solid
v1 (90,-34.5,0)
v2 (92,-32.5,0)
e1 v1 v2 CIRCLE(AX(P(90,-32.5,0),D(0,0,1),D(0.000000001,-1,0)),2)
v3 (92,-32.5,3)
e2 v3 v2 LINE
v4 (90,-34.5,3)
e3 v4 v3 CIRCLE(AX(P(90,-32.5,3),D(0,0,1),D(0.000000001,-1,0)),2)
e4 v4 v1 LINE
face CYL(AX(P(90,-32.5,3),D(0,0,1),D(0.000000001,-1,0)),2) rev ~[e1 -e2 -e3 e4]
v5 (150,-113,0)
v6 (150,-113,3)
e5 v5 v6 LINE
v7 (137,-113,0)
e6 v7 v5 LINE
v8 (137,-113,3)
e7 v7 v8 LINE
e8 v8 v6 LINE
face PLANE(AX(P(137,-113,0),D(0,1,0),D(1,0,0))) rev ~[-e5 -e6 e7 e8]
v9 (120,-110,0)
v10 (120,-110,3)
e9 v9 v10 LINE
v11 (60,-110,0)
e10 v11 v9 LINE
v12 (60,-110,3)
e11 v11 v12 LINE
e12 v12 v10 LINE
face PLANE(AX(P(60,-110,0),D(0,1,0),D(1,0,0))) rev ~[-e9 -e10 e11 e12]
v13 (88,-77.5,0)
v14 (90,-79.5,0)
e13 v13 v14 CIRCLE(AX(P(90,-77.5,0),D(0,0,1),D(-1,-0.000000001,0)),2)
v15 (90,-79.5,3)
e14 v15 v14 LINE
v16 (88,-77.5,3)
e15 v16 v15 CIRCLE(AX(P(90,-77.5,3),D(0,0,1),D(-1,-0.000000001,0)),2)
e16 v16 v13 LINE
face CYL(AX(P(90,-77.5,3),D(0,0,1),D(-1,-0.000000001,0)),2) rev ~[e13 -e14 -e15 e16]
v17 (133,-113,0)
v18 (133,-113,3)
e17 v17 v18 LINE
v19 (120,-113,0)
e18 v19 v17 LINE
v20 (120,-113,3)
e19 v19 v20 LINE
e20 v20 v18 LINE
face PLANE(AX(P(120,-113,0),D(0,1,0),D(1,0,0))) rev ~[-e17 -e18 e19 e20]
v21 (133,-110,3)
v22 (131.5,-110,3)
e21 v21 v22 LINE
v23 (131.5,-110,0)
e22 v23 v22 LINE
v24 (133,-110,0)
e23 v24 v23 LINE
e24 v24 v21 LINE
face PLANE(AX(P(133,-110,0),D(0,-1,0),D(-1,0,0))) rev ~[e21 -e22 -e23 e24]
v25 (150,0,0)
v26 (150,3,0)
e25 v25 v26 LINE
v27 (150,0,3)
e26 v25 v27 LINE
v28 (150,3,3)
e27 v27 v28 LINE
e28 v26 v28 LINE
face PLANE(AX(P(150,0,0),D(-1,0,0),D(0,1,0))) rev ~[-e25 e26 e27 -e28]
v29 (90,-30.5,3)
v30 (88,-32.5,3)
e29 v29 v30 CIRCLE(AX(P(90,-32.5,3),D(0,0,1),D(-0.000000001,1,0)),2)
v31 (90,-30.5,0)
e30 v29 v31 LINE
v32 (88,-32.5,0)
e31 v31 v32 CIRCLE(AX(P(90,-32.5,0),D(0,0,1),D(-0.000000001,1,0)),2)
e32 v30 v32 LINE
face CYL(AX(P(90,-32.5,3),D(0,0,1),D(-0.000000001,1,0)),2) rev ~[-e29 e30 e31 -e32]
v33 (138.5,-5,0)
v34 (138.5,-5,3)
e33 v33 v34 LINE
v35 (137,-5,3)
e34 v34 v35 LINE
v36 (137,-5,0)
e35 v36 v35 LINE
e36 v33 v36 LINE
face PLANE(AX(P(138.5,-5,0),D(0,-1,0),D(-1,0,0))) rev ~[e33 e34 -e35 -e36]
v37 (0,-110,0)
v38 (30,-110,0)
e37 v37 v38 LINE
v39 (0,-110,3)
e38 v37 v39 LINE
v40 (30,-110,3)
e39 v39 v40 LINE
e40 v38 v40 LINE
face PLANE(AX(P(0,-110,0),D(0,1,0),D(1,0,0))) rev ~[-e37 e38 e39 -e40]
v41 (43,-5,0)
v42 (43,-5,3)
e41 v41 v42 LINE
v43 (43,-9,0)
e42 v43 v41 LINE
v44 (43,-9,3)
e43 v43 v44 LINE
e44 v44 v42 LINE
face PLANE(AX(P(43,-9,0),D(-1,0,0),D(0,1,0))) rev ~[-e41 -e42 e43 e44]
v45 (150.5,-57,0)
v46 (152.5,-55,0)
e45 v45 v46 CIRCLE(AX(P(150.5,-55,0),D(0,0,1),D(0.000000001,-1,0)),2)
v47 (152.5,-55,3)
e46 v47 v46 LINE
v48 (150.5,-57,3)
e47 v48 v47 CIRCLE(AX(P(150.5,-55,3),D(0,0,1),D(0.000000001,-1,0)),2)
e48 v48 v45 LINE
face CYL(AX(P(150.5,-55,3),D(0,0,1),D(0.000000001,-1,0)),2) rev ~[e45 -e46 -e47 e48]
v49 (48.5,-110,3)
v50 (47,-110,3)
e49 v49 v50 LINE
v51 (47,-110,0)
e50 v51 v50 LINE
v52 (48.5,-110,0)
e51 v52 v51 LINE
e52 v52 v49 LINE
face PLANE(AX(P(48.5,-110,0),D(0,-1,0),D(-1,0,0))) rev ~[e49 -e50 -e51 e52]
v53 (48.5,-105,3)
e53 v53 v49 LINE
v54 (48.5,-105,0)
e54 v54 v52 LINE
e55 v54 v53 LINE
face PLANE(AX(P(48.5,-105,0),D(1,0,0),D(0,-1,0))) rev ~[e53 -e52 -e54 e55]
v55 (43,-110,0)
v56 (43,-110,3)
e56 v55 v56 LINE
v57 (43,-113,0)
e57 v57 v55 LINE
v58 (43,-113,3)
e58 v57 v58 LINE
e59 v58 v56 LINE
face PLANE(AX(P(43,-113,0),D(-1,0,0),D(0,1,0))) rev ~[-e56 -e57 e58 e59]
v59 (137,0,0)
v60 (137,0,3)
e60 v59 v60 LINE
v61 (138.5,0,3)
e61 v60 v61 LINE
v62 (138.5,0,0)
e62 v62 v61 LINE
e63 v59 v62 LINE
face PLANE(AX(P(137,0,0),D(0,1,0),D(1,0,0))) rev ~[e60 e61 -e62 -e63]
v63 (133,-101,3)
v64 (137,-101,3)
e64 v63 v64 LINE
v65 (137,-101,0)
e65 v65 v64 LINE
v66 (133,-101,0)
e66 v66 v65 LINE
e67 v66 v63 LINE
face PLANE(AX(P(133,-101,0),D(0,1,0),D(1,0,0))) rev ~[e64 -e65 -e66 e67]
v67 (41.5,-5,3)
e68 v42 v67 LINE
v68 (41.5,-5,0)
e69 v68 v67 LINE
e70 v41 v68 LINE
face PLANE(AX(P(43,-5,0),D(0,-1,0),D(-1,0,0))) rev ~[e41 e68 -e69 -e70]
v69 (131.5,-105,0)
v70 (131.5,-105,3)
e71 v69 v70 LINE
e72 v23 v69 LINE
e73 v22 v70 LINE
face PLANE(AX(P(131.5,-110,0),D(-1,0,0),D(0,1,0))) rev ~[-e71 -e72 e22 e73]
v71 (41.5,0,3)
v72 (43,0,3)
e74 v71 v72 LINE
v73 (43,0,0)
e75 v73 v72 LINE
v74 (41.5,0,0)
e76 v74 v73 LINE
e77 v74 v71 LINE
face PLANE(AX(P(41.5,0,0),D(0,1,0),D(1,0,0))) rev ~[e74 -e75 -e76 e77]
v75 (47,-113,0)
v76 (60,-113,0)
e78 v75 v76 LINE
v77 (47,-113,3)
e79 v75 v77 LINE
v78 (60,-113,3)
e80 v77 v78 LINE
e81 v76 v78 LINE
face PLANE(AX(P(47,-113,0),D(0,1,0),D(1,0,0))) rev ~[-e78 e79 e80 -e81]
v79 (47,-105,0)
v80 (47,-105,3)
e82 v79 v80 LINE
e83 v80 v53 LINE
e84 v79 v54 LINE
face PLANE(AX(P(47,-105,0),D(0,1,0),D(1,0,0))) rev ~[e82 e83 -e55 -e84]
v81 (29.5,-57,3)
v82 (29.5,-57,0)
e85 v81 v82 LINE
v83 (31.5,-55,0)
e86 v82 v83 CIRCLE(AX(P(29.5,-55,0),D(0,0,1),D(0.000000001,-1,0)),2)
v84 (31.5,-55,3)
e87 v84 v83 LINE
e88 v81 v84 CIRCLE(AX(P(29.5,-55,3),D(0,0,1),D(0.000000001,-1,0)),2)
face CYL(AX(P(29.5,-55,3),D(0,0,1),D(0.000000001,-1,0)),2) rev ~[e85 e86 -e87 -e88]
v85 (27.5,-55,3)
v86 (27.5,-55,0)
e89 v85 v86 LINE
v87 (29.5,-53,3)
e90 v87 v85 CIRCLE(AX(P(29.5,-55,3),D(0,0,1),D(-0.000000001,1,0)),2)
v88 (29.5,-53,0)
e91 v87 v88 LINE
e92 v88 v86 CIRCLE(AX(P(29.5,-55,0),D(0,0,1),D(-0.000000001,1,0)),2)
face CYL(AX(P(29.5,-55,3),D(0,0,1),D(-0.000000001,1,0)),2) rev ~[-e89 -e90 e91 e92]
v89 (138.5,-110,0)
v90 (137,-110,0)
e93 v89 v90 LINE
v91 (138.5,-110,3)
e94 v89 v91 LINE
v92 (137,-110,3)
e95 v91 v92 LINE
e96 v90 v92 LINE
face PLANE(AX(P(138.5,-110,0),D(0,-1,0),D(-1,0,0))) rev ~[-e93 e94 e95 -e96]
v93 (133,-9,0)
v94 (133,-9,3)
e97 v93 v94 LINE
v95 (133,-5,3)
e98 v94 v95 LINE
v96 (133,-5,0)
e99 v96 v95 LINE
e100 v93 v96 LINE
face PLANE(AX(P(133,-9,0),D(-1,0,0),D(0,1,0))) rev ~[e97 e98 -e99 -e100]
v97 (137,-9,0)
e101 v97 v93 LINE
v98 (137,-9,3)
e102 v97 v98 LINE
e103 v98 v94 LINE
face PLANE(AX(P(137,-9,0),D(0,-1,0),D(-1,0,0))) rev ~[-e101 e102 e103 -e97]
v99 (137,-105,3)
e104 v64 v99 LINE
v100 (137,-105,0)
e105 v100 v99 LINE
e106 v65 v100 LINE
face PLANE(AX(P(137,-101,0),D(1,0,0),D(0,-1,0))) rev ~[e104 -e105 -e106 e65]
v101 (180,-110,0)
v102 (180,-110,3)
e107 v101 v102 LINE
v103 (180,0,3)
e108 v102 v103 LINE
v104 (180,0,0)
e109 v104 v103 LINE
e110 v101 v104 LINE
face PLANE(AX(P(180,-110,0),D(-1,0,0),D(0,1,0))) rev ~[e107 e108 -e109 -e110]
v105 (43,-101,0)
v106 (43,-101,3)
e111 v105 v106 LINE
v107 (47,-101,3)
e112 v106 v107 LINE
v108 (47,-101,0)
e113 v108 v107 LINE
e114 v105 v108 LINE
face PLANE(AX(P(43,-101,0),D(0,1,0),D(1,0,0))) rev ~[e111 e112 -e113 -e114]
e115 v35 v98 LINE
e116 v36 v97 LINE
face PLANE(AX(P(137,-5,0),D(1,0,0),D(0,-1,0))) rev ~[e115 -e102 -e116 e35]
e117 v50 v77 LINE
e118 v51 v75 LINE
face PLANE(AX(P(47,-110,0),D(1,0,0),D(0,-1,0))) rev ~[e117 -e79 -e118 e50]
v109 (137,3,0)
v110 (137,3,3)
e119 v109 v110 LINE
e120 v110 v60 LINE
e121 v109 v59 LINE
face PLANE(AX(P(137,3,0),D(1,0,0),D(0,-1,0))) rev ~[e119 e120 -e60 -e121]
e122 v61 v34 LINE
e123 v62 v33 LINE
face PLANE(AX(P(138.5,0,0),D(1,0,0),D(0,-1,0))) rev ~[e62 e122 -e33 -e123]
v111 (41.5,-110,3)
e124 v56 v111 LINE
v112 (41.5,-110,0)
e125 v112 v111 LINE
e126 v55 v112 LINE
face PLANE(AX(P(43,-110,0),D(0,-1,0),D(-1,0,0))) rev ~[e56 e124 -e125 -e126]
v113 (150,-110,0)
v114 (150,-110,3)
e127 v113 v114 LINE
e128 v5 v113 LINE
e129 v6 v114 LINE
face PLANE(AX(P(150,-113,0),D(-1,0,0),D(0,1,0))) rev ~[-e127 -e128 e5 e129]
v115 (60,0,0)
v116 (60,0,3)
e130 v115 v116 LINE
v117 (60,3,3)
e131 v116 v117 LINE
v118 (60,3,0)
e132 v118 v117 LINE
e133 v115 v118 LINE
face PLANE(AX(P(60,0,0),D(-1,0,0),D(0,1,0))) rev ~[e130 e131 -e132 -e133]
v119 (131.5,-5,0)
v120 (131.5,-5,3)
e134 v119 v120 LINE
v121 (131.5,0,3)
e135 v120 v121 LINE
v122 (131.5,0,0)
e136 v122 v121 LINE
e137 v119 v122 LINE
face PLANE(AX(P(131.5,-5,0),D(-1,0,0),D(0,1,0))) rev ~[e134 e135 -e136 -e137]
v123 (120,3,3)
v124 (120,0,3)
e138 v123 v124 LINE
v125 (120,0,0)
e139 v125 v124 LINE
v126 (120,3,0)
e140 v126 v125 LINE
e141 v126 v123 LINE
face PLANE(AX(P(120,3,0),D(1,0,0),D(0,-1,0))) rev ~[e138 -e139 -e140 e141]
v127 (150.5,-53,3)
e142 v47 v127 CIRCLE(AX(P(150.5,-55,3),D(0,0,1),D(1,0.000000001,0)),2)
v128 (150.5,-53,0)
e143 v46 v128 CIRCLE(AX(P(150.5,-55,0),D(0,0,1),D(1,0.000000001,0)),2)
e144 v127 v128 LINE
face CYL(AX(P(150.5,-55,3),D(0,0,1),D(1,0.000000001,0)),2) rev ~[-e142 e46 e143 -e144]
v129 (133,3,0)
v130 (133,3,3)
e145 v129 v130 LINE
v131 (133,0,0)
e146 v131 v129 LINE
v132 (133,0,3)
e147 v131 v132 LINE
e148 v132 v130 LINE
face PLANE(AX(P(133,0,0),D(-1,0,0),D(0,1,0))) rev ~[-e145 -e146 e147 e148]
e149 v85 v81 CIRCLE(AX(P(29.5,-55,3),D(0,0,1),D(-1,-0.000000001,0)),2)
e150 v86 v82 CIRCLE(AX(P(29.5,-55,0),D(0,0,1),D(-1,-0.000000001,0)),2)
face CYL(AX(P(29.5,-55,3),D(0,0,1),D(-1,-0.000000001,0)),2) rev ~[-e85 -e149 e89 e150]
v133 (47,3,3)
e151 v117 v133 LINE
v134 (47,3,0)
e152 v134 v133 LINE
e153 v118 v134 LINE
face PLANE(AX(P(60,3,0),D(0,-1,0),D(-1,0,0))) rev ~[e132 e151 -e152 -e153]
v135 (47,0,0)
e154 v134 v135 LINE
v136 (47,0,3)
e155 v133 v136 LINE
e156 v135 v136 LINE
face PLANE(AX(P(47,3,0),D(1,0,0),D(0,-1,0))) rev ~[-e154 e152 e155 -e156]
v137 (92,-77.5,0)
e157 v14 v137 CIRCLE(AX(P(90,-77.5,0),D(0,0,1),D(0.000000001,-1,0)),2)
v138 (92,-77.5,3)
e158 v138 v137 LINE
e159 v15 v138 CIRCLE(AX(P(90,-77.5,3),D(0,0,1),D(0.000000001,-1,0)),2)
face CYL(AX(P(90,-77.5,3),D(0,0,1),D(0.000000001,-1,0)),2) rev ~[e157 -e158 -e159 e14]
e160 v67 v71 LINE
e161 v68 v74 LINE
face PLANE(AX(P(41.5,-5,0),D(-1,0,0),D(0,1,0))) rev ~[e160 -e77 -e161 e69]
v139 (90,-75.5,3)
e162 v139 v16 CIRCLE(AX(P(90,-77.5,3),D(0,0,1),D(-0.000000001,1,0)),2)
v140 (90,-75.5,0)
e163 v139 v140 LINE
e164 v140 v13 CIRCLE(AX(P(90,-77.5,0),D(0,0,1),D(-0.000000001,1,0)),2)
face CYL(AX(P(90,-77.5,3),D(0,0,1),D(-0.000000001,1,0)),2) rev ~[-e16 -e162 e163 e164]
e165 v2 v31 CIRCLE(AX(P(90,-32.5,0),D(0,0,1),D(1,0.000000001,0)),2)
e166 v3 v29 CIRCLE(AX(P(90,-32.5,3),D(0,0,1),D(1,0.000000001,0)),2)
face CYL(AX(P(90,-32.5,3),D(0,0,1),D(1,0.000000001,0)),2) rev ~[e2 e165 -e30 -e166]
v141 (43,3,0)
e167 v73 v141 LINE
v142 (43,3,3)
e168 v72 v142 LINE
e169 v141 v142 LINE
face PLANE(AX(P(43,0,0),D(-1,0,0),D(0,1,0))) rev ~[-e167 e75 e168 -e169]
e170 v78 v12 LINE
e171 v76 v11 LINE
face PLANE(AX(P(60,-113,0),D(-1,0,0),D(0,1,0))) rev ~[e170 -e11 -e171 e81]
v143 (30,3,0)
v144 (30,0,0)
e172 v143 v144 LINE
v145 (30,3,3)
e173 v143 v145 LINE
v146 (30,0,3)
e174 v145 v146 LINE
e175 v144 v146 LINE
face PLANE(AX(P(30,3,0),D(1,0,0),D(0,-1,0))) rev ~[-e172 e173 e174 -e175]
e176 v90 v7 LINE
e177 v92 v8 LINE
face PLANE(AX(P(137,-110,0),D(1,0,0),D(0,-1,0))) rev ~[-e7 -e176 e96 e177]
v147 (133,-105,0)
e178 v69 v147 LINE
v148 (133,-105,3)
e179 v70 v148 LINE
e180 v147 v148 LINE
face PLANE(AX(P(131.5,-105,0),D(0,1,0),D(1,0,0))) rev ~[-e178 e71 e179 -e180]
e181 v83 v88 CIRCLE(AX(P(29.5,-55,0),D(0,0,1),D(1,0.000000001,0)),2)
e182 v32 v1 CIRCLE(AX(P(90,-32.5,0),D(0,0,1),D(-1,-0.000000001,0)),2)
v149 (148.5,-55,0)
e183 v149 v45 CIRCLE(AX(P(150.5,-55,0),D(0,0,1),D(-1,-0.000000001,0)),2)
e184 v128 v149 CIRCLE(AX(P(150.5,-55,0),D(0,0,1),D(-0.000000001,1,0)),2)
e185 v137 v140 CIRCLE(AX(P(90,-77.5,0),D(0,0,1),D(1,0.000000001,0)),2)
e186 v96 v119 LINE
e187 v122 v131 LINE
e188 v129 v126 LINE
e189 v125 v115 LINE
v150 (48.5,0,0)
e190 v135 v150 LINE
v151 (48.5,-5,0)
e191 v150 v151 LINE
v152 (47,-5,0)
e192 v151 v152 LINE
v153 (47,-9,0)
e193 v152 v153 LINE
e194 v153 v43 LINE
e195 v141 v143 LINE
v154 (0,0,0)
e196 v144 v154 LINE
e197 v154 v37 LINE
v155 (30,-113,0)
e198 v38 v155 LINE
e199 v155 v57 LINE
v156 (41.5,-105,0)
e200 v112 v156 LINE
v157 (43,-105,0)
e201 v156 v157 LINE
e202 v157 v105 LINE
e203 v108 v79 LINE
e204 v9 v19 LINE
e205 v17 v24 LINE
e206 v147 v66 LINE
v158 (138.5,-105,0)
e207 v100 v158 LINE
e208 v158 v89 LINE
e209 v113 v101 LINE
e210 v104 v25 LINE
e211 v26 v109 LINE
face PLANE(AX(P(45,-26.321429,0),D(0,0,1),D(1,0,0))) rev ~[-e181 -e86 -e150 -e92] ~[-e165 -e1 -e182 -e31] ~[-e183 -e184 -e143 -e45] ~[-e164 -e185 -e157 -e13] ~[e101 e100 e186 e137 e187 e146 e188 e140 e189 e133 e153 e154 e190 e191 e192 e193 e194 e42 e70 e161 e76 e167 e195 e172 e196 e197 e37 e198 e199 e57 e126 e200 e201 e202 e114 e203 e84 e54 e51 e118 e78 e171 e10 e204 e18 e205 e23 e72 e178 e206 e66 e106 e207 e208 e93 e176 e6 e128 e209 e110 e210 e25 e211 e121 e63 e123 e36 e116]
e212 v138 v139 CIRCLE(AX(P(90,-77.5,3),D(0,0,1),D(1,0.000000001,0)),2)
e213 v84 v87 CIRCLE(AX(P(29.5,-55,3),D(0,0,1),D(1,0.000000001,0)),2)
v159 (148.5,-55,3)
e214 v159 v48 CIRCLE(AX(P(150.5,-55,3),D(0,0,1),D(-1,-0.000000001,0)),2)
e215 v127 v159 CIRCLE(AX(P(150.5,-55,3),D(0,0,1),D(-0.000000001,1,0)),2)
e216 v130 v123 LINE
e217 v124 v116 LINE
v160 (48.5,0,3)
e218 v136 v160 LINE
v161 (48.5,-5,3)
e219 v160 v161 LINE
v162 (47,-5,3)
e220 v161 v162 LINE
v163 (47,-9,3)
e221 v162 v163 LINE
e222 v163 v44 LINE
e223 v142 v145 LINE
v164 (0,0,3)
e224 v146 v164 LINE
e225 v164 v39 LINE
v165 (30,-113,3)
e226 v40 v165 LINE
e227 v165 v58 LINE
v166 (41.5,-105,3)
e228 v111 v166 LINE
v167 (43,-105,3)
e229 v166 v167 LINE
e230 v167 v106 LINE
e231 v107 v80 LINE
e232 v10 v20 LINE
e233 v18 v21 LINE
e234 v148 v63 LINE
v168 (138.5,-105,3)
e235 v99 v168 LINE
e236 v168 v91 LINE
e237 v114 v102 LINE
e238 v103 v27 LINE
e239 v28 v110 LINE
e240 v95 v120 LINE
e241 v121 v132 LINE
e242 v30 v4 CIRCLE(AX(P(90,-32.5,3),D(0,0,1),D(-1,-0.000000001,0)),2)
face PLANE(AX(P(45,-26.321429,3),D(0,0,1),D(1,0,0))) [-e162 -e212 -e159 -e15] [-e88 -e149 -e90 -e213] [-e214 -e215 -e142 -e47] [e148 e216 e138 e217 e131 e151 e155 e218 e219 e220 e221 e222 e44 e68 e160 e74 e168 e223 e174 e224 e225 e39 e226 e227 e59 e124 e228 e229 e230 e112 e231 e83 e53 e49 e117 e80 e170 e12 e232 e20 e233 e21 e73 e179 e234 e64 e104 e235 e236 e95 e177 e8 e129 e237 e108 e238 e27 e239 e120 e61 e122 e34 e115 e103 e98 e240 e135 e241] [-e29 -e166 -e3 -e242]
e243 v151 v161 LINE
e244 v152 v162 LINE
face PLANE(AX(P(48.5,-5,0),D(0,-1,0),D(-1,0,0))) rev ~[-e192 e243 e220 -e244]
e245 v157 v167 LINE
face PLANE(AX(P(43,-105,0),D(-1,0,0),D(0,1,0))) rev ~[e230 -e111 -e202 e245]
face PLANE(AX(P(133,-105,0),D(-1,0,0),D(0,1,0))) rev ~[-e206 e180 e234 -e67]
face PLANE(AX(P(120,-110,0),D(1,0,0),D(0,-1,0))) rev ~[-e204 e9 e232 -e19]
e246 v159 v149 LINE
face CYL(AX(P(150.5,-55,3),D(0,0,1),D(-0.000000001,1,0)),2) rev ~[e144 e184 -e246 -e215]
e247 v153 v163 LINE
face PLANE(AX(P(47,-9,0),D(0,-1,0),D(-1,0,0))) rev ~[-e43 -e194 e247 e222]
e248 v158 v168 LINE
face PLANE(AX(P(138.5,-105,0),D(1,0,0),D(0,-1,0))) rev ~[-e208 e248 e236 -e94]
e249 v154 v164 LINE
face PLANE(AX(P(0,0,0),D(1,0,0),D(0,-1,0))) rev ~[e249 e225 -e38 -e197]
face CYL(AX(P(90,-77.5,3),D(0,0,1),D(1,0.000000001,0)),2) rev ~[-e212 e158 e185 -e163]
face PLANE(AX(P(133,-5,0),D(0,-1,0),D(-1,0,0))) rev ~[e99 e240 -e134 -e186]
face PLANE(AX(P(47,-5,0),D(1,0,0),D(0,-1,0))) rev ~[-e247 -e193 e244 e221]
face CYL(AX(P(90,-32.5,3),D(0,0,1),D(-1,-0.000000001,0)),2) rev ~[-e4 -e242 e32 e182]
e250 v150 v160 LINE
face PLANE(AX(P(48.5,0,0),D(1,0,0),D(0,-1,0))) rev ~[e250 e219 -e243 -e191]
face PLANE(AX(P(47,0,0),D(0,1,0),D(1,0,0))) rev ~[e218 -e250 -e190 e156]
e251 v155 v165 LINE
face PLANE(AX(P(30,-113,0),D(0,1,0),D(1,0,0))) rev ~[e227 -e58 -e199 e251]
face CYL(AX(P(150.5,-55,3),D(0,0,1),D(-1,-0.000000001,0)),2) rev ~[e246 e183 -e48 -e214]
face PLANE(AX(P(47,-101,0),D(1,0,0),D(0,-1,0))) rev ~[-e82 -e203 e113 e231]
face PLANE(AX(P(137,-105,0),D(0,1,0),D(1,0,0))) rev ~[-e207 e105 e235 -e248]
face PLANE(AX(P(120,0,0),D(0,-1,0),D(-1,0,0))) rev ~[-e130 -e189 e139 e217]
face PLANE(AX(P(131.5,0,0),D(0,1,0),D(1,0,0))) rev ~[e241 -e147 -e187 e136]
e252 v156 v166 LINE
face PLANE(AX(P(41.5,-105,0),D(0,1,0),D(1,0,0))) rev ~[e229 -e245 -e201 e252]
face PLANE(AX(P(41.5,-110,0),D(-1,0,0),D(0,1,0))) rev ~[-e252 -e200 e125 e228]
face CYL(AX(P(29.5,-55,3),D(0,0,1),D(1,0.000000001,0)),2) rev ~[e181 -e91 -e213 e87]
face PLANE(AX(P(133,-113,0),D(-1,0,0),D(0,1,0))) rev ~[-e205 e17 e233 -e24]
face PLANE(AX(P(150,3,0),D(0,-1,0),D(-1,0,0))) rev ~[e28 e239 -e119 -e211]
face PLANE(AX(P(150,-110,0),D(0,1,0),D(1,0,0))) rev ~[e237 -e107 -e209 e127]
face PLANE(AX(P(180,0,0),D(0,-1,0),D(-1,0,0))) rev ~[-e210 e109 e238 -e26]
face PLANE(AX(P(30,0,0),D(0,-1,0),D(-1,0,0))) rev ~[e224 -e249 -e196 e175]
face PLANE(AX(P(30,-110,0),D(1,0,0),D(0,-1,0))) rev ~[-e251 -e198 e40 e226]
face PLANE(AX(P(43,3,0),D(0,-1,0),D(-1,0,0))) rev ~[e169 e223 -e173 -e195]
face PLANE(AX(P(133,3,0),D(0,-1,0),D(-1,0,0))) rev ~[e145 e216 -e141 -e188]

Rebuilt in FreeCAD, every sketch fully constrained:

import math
import FreeCAD as App
import Part
import Sketcher
from FreeCAD import Vector
Q = App.Units.Quantity

doc = App.newDocument("Part")
body = doc.addObject("PartDesign::Body", "Body")

# Sketch on XY plane
sketch1 = body.newObject("Sketcher::SketchObject", "Sketch")
sketch1.AttachmentSupport = (doc.getObject("XY_Plane"), [""])
sketch1.MapMode = "FlatFace"
sketch1.addGeometry(Part.LineSegment(Vector(48.5, 0, 0), Vector(48.5, -5, 0)), False)
sketch1.addGeometry(Part.LineSegment(Vector(48.5, -5, 0), Vector(47, -5, 0)), False)
sketch1.addGeometry(Part.LineSegment(Vector(47, -5, 0), Vector(47, -9, 0)), False)
sketch1.addGeometry(Part.LineSegment(Vector(47, -9, 0), Vector(43, -9, 0)), False)
sketch1.addGeometry(Part.LineSegment(Vector(43, -9, 0), Vector(43, -5, 0)), False)
sketch1.addGeometry(Part.LineSegment(Vector(43, -5, 0), Vector(41.5, -5, 0)), False)
sketch1.addGeometry(Part.LineSegment(Vector(41.5, -5, 0), Vector(41.5, 0, 0)), False)
sketch1.addGeometry(Part.LineSegment(Vector(41.5, 0, 0), Vector(43, 0, 0)), False)
sketch1.addGeometry(Part.LineSegment(Vector(43, 0, 0), Vector(43, 3, 0)), False)
sketch1.addGeometry(Part.LineSegment(Vector(43, 3, 0), Vector(30, 3, 0)), False)
sketch1.addGeometry(Part.LineSegment(Vector(30, 3, 0), Vector(30, 0, 0)), False)
sketch1.addGeometry(Part.LineSegment(Vector(30, 0, 0), Vector(0, 0, 0)), False)
sketch1.addGeometry(Part.LineSegment(Vector(0, 0, 0), Vector(0, -110, 0)), False)
sketch1.addGeometry(Part.LineSegment(Vector(0, -110, 0), Vector(30, -110, 0)), False)
sketch1.addGeometry(Part.LineSegment(Vector(30, -110, 0), Vector(30, -113, 0)), False)
sketch1.addGeometry(Part.LineSegment(Vector(30, -113, 0), Vector(43, -113, 0)), False)
sketch1.addGeometry(Part.LineSegment(Vector(43, -113, 0), Vector(43, -110, 0)), False)
sketch1.addGeometry(Part.LineSegment(Vector(43, -110, 0), Vector(41.5, -110, 0)), False)
sketch1.addGeometry(Part.LineSegment(Vector(41.5, -110, 0), Vector(41.5, -105, 0)), False)
sketch1.addGeometry(Part.LineSegment(Vector(41.5, -105, 0), Vector(43, -105, 0)), False)
sketch1.addGeometry(Part.LineSegment(Vector(43, -105, 0), Vector(43, -101, 0)), False)
sketch1.addGeometry(Part.LineSegment(Vector(43, -101, 0), Vector(47, -101, 0)), False)
sketch1.addGeometry(Part.LineSegment(Vector(47, -101, 0), Vector(47, -105, 0)), False)
sketch1.addGeometry(Part.LineSegment(Vector(47, -105, 0), Vector(48.5, -105, 0)), False)
sketch1.addGeometry(Part.LineSegment(Vector(48.5, -105, 0), Vector(48.5, -110, 0)), False)
sketch1.addGeometry(Part.LineSegment(Vector(48.5, -110, 0), Vector(47, -110, 0)), False)
sketch1.addGeometry(Part.LineSegment(Vector(47, -110, 0), Vector(47, -113, 0)), False)
sketch1.addGeometry(Part.LineSegment(Vector(47, -113, 0), Vector(60, -113, 0)), False)
sketch1.addGeometry(Part.LineSegment(Vector(60, -113, 0), Vector(60, -110, 0)), False)
sketch1.addGeometry(Part.LineSegment(Vector(60, -110, 0), Vector(120, -110, 0)), False)
sketch1.addGeometry(Part.LineSegment(Vector(120, -110, 0), Vector(120, -113, 0)), False)
sketch1.addGeometry(Part.LineSegment(Vector(120, -113, 0), Vector(133, -113, 0)), False)
sketch1.addGeometry(Part.LineSegment(Vector(133, -113, 0), Vector(133, -110, 0)), False)
sketch1.addGeometry(Part.LineSegment(Vector(133, -110, 0), Vector(131.5, -110, 0)), False)
sketch1.addGeometry(Part.LineSegment(Vector(131.5, -110, 0), Vector(131.5, -105, 0)), False)
sketch1.addGeometry(Part.LineSegment(Vector(131.5, -105, 0), Vector(133, -105, 0)), False)
sketch1.addGeometry(Part.LineSegment(Vector(133, -105, 0), Vector(133, -101, 0)), False)
sketch1.addGeometry(Part.LineSegment(Vector(133, -101, 0), Vector(137, -101, 0)), False)
sketch1.addGeometry(Part.LineSegment(Vector(137, -101, 0), Vector(137, -105, 0)), False)
sketch1.addGeometry(Part.LineSegment(Vector(137, -105, 0), Vector(138.5, -105, 0)), False)
sketch1.addGeometry(Part.LineSegment(Vector(138.5, -105, 0), Vector(138.5, -110, 0)), False)
sketch1.addGeometry(Part.LineSegment(Vector(138.5, -110, 0), Vector(137, -110, 0)), False)
sketch1.addGeometry(Part.LineSegment(Vector(137, -110, 0), Vector(137, -113, 0)), False)
sketch1.addGeometry(Part.LineSegment(Vector(137, -113, 0), Vector(150, -113, 0)), False)
sketch1.addGeometry(Part.LineSegment(Vector(150, -113, 0), Vector(150, -110, 0)), False)
sketch1.addGeometry(Part.LineSegment(Vector(150, -110, 0), Vector(180, -110, 0)), False)
sketch1.addGeometry(Part.LineSegment(Vector(180, -110, 0), Vector(180, 0, 0)), False)
sketch1.addGeometry(Part.LineSegment(Vector(180, 0, 0), Vector(150, 0, 0)), False)
sketch1.addGeometry(Part.LineSegment(Vector(150, 0, 0), Vector(150, 3, 0)), False)
sketch1.addGeometry(Part.LineSegment(Vector(150, 3, 0), Vector(137, 3, 0)), False)
sketch1.addGeometry(Part.LineSegment(Vector(137, 3, 0), Vector(137, 0, 0)), False)
sketch1.addGeometry(Part.LineSegment(Vector(137, 0, 0), Vector(138.5, 0, 0)), False)
sketch1.addGeometry(Part.LineSegment(Vector(138.5, 0, 0), Vector(138.5, -5, 0)), False)
sketch1.addGeometry(Part.LineSegment(Vector(138.5, -5, 0), Vector(137, -5, 0)), False)
sketch1.addGeometry(Part.LineSegment(Vector(137, -5, 0), Vector(137, -9, 0)), False)
sketch1.addGeometry(Part.LineSegment(Vector(137, -9, 0), Vector(133, -9, 0)), False)
sketch1.addGeometry(Part.LineSegment(Vector(133, -9, 0), Vector(133, -5, 0)), False)
sketch1.addGeometry(Part.LineSegment(Vector(133, -5, 0), Vector(131.5, -5, 0)), False)
sketch1.addGeometry(Part.LineSegment(Vector(131.5, -5, 0), Vector(131.5, 0, 0)), False)
sketch1.addGeometry(Part.LineSegment(Vector(131.5, 0, 0), Vector(133, 0, 0)), False)
sketch1.addGeometry(Part.LineSegment(Vector(133, 0, 0), Vector(133, 3, 0)), False)
sketch1.addGeometry(Part.LineSegment(Vector(133, 3, 0), Vector(120, 3, 0)), False)
sketch1.addGeometry(Part.LineSegment(Vector(120, 3, 0), Vector(120, 0, 0)), False)
sketch1.addGeometry(Part.LineSegment(Vector(120, 0, 0), Vector(60, 0, 0)), False)
sketch1.addGeometry(Part.LineSegment(Vector(60, 0, 0), Vector(60, 3, 0)), False)
sketch1.addGeometry(Part.LineSegment(Vector(60, 3, 0), Vector(47, 3, 0)), False)
sketch1.addGeometry(Part.LineSegment(Vector(47, 3, 0), Vector(47, 0, 0)), False)
sketch1.addGeometry(Part.LineSegment(Vector(47, 0, 0), Vector(48.5, 0, 0)), False)
sketch1.addConstraint(Sketcher.Constraint("Coincident", 0, 2, 1, 1))
sketch1.addConstraint(Sketcher.Constraint("Coincident", 1, 2, 2, 1))
sketch1.addConstraint(Sketcher.Constraint("Coincident", 2, 2, 3, 1))
sketch1.addConstraint(Sketcher.Constraint("Coincident", 3, 2, 4, 1))
sketch1.addConstraint(Sketcher.Constraint("Coincident", 4, 2, 5, 1))
sketch1.addConstraint(Sketcher.Constraint("Coincident", 5, 2, 6, 1))
sketch1.addConstraint(Sketcher.Constraint("Coincident", 6, 2, 7, 1))
sketch1.addConstraint(Sketcher.Constraint("Coincident", 7, 2, 8, 1))
sketch1.addConstraint(Sketcher.Constraint("Coincident", 8, 2, 9, 1))
sketch1.addConstraint(Sketcher.Constraint("Coincident", 9, 2, 10, 1))
sketch1.addConstraint(Sketcher.Constraint("Coincident", 10, 2, 11, 1))
sketch1.addConstraint(Sketcher.Constraint("Coincident", 11, 2, 12, 1))
sketch1.addConstraint(Sketcher.Constraint("Coincident", 12, 2, 13, 1))
sketch1.addConstraint(Sketcher.Constraint("Coincident", 13, 2, 14, 1))
sketch1.addConstraint(Sketcher.Constraint("Coincident", 14, 2, 15, 1))
sketch1.addConstraint(Sketcher.Constraint("Coincident", 15, 2, 16, 1))
sketch1.addConstraint(Sketcher.Constraint("Coincident", 16, 2, 17, 1))
sketch1.addConstraint(Sketcher.Constraint("Coincident", 17, 2, 18, 1))
sketch1.addConstraint(Sketcher.Constraint("Coincident", 18, 2, 19, 1))
sketch1.addConstraint(Sketcher.Constraint("Coincident", 19, 2, 20, 1))
sketch1.addConstraint(Sketcher.Constraint("Coincident", 20, 2, 21, 1))
sketch1.addConstraint(Sketcher.Constraint("Coincident", 21, 2, 22, 1))
sketch1.addConstraint(Sketcher.Constraint("Coincident", 22, 2, 23, 1))
sketch1.addConstraint(Sketcher.Constraint("Coincident", 23, 2, 24, 1))
sketch1.addConstraint(Sketcher.Constraint("Coincident", 24, 2, 25, 1))
sketch1.addConstraint(Sketcher.Constraint("Coincident", 25, 2, 26, 1))
sketch1.addConstraint(Sketcher.Constraint("Coincident", 26, 2, 27, 1))
sketch1.addConstraint(Sketcher.Constraint("Coincident", 27, 2, 28, 1))
sketch1.addConstraint(Sketcher.Constraint("Coincident", 28, 2, 29, 1))
sketch1.addConstraint(Sketcher.Constraint("Coincident", 29, 2, 30, 1))
sketch1.addConstraint(Sketcher.Constraint("Coincident", 30, 2, 31, 1))
sketch1.addConstraint(Sketcher.Constraint("Coincident", 31, 2, 32, 1))
sketch1.addConstraint(Sketcher.Constraint("Coincident", 32, 2, 33, 1))
sketch1.addConstraint(Sketcher.Constraint("Coincident", 33, 2, 34, 1))
sketch1.addConstraint(Sketcher.Constraint("Coincident", 34, 2, 35, 1))
sketch1.addConstraint(Sketcher.Constraint("Coincident", 35, 2, 36, 1))
sketch1.addConstraint(Sketcher.Constraint("Coincident", 36, 2, 37, 1))
sketch1.addConstraint(Sketcher.Constraint("Coincident", 37, 2, 38, 1))
sketch1.addConstraint(Sketcher.Constraint("Coincident", 38, 2, 39, 1))
sketch1.addConstraint(Sketcher.Constraint("Coincident", 39, 2, 40, 1))
sketch1.addConstraint(Sketcher.Constraint("Coincident", 40, 2, 41, 1))
sketch1.addConstraint(Sketcher.Constraint("Coincident", 41, 2, 42, 1))
sketch1.addConstraint(Sketcher.Constraint("Coincident", 42, 2, 43, 1))
sketch1.addConstraint(Sketcher.Constraint("Coincident", 43, 2, 44, 1))
sketch1.addConstraint(Sketcher.Constraint("Coincident", 44, 2, 45, 1))
sketch1.addConstraint(Sketcher.Constraint("Coincident", 45, 2, 46, 1))
sketch1.addConstraint(Sketcher.Constraint("Coincident", 46, 2, 47, 1))
sketch1.addConstraint(Sketcher.Constraint("Coincident", 47, 2, 48, 1))
sketch1.addConstraint(Sketcher.Constraint("Coincident", 48, 2, 49, 1))
sketch1.addConstraint(Sketcher.Constraint("Coincident", 49, 2, 50, 1))
sketch1.addConstraint(Sketcher.Constraint("Coincident", 50, 2, 51, 1))
sketch1.addConstraint(Sketcher.Constraint("Coincident", 51, 2, 52, 1))
sketch1.addConstraint(Sketcher.Constraint("Coincident", 52, 2, 53, 1))
sketch1.addConstraint(Sketcher.Constraint("Coincident", 53, 2, 54, 1))
sketch1.addConstraint(Sketcher.Constraint("Coincident", 54, 2, 55, 1))
sketch1.addConstraint(Sketcher.Constraint("Coincident", 55, 2, 56, 1))
sketch1.addConstraint(Sketcher.Constraint("Coincident", 56, 2, 57, 1))
sketch1.addConstraint(Sketcher.Constraint("Coincident", 57, 2, 58, 1))
sketch1.addConstraint(Sketcher.Constraint("Coincident", 58, 2, 59, 1))
sketch1.addConstraint(Sketcher.Constraint("Coincident", 59, 2, 60, 1))
sketch1.addConstraint(Sketcher.Constraint("Coincident", 60, 2, 61, 1))
sketch1.addConstraint(Sketcher.Constraint("Coincident", 61, 2, 62, 1))
sketch1.addConstraint(Sketcher.Constraint("Coincident", 62, 2, 63, 1))
sketch1.addConstraint(Sketcher.Constraint("Coincident", 63, 2, 64, 1))
sketch1.addConstraint(Sketcher.Constraint("Coincident", 64, 2, 65, 1))
sketch1.addConstraint(Sketcher.Constraint("Coincident", 65, 2, 66, 1))
sketch1.addConstraint(Sketcher.Constraint("Coincident", 66, 2, 67, 1))
sketch1.addConstraint(Sketcher.Constraint("Coincident", 67, 2, 0, 1))
sketch1.addConstraint(Sketcher.Constraint("Vertical", 0))
sketch1.addConstraint(Sketcher.Constraint("Horizontal", 1))
sketch1.addConstraint(Sketcher.Constraint("Vertical", 2))
sketch1.addConstraint(Sketcher.Constraint("Horizontal", 3))
sketch1.addConstraint(Sketcher.Constraint("Vertical", 4))
sketch1.addConstraint(Sketcher.Constraint("Horizontal", 5))
sketch1.addConstraint(Sketcher.Constraint("Vertical", 6))
sketch1.addConstraint(Sketcher.Constraint("Horizontal", 7))
sketch1.addConstraint(Sketcher.Constraint("Vertical", 8))
sketch1.addConstraint(Sketcher.Constraint("Horizontal", 9))
sketch1.addConstraint(Sketcher.Constraint("Vertical", 10))
sketch1.addConstraint(Sketcher.Constraint("Horizontal", 11))
sketch1.addConstraint(Sketcher.Constraint("Vertical", 12))
sketch1.addConstraint(Sketcher.Constraint("Horizontal", 13))
sketch1.addConstraint(Sketcher.Constraint("Vertical", 14))
sketch1.addConstraint(Sketcher.Constraint("Horizontal", 15))
sketch1.addConstraint(Sketcher.Constraint("Vertical", 16))
sketch1.addConstraint(Sketcher.Constraint("Horizontal", 17))
sketch1.addConstraint(Sketcher.Constraint("Vertical", 18))
sketch1.addConstraint(Sketcher.Constraint("Horizontal", 19))
sketch1.addConstraint(Sketcher.Constraint("Vertical", 20))
sketch1.addConstraint(Sketcher.Constraint("Horizontal", 21))
sketch1.addConstraint(Sketcher.Constraint("Vertical", 22))
sketch1.addConstraint(Sketcher.Constraint("Horizontal", 23))
sketch1.addConstraint(Sketcher.Constraint("Vertical", 24))
sketch1.addConstraint(Sketcher.Constraint("Horizontal", 25))
sketch1.addConstraint(Sketcher.Constraint("Vertical", 26))
sketch1.addConstraint(Sketcher.Constraint("Horizontal", 27))
sketch1.addConstraint(Sketcher.Constraint("Vertical", 28))
sketch1.addConstraint(Sketcher.Constraint("Horizontal", 29))
sketch1.addConstraint(Sketcher.Constraint("Vertical", 30))
sketch1.addConstraint(Sketcher.Constraint("Horizontal", 31))
sketch1.addConstraint(Sketcher.Constraint("Vertical", 32))
sketch1.addConstraint(Sketcher.Constraint("Horizontal", 33))
sketch1.addConstraint(Sketcher.Constraint("Vertical", 34))
sketch1.addConstraint(Sketcher.Constraint("Horizontal", 35))
sketch1.addConstraint(Sketcher.Constraint("Vertical", 36))
sketch1.addConstraint(Sketcher.Constraint("Horizontal", 37))
sketch1.addConstraint(Sketcher.Constraint("Vertical", 38))
sketch1.addConstraint(Sketcher.Constraint("Horizontal", 39))
sketch1.addConstraint(Sketcher.Constraint("Vertical", 40))
sketch1.addConstraint(Sketcher.Constraint("Horizontal", 41))
sketch1.addConstraint(Sketcher.Constraint("Vertical", 42))
sketch1.addConstraint(Sketcher.Constraint("Horizontal", 43))
sketch1.addConstraint(Sketcher.Constraint("Vertical", 44))
sketch1.addConstraint(Sketcher.Constraint("Horizontal", 45))
sketch1.addConstraint(Sketcher.Constraint("Vertical", 46))
sketch1.addConstraint(Sketcher.Constraint("Horizontal", 47))
sketch1.addConstraint(Sketcher.Constraint("Vertical", 48))
sketch1.addConstraint(Sketcher.Constraint("Horizontal", 49))
sketch1.addConstraint(Sketcher.Constraint("Vertical", 50))
sketch1.addConstraint(Sketcher.Constraint("Horizontal", 51))
sketch1.addConstraint(Sketcher.Constraint("Vertical", 52))
sketch1.addConstraint(Sketcher.Constraint("Horizontal", 53))
sketch1.addConstraint(Sketcher.Constraint("Vertical", 54))
sketch1.addConstraint(Sketcher.Constraint("Horizontal", 55))
sketch1.addConstraint(Sketcher.Constraint("Vertical", 56))
sketch1.addConstraint(Sketcher.Constraint("Horizontal", 57))
sketch1.addConstraint(Sketcher.Constraint("Vertical", 58))
sketch1.addConstraint(Sketcher.Constraint("Horizontal", 59))
sketch1.addConstraint(Sketcher.Constraint("Vertical", 60))
sketch1.addConstraint(Sketcher.Constraint("Horizontal", 61))
sketch1.addConstraint(Sketcher.Constraint("Vertical", 62))
sketch1.addConstraint(Sketcher.Constraint("Horizontal", 63))
sketch1.addConstraint(Sketcher.Constraint("Vertical", 64))
sketch1.addConstraint(Sketcher.Constraint("Horizontal", 65))
sketch1.addConstraint(Sketcher.Constraint("Vertical", 66))
sketch1.addConstraint(Sketcher.Constraint("Horizontal", 67))
sketch1.addConstraint(Sketcher.Constraint("Coincident", 11, 2, -1, 1))
sketch1.addConstraint(Sketcher.Constraint("PointOnObject", 6, 2, -1))
sketch1.addConstraint(Sketcher.Constraint("PointOnObject", 46, 2, -1))
sketch1.addConstraint(Sketcher.Constraint("PointOnObject", 50, 2, -1))
sketch1.addConstraint(Sketcher.Constraint("PointOnObject", 58, 2, -1))
sketch1.addConstraint(Sketcher.Constraint("PointOnObject", 62, 2, -1))
sketch1.addConstraint(Sketcher.Constraint("PointOnObject", 66, 2, -1))
sketch1.addConstraint(Sketcher.Constraint("Horizontal", 1, 2, 4, 2))
sketch1.addConstraint(Sketcher.Constraint("Horizontal", 13, 2, 16, 2))
sketch1.addConstraint(Sketcher.Constraint("Horizontal", 19, 2, 22, 2))
sketch1.addConstraint(Sketcher.Constraint("Horizontal", 17, 2, 24, 2))
sketch1.addConstraint(Sketcher.Constraint("Horizontal", 15, 2, 26, 2))
sketch1.addConstraint(Sketcher.Constraint("Horizontal", 25, 2, 28, 2))
sketch1.addConstraint(Sketcher.Constraint("Horizontal", 27, 2, 30, 2))
sketch1.addConstraint(Sketcher.Constraint("Horizontal", 29, 2, 32, 2))
sketch1.addConstraint(Sketcher.Constraint("Horizontal", 23, 2, 34, 2))
sketch1.addConstraint(Sketcher.Constraint("Horizontal", 21, 2, 36, 2))
sketch1.addConstraint(Sketcher.Constraint("Horizontal", 35, 2, 38, 2))
sketch1.addConstraint(Sketcher.Constraint("Horizontal", 33, 2, 40, 2))
sketch1.addConstraint(Sketcher.Constraint("Horizontal", 31, 2, 42, 2))
sketch1.addConstraint(Sketcher.Constraint("Horizontal", 41, 2, 44, 2))
sketch1.addConstraint(Sketcher.Constraint("Horizontal", 9, 2, 48, 2))
sketch1.addConstraint(Sketcher.Constraint("Horizontal", 5, 2, 52, 2))
sketch1.addConstraint(Sketcher.Constraint("Horizontal", 3, 2, 54, 2))
sketch1.addConstraint(Sketcher.Constraint("Horizontal", 53, 2, 56, 2))
sketch1.addConstraint(Sketcher.Constraint("Horizontal", 49, 2, 60, 2))
sketch1.addConstraint(Sketcher.Constraint("Horizontal", 61, 2, 64, 2))
sketch1.addConstraint(Sketcher.Constraint("Vertical", 4, 2, 7, 2))
sketch1.addConstraint(Sketcher.Constraint("Vertical", 10, 2, 13, 2))
sketch1.addConstraint(Sketcher.Constraint("Vertical", 8, 2, 15, 2))
sketch1.addConstraint(Sketcher.Constraint("Vertical", 6, 2, 17, 2))
sketch1.addConstraint(Sketcher.Constraint("Vertical", 16, 2, 19, 2))
sketch1.addConstraint(Sketcher.Constraint("Vertical", 2, 2, 21, 2))
sketch1.addConstraint(Sketcher.Constraint("Vertical", 0, 2, 23, 2))
sketch1.addConstraint(Sketcher.Constraint("Vertical", 22, 2, 25, 2))
sketch1.addConstraint(Sketcher.Constraint("Vertical", 32, 2, 35, 2))
sketch1.addConstraint(Sketcher.Constraint("Vertical", 38, 2, 41, 2))
sketch1.addConstraint(Sketcher.Constraint("Vertical", 44, 2, 47, 2))
sketch1.addConstraint(Sketcher.Constraint("Vertical", 42, 2, 49, 2))
sketch1.addConstraint(Sketcher.Constraint("Vertical", 40, 2, 51, 2))
sketch1.addConstraint(Sketcher.Constraint("Vertical", 50, 2, 53, 2))
sketch1.addConstraint(Sketcher.Constraint("Vertical", 36, 2, 55, 2))
sketch1.addConstraint(Sketcher.Constraint("Vertical", 34, 2, 57, 2))
sketch1.addConstraint(Sketcher.Constraint("Vertical", 56, 2, 59, 2))
sketch1.addConstraint(Sketcher.Constraint("Vertical", 30, 2, 61, 2))
sketch1.addConstraint(Sketcher.Constraint("Vertical", 28, 2, 63, 2))
sketch1.addConstraint(Sketcher.Constraint("Vertical", 26, 2, 65, 2))
sketch1.addConstraint(Sketcher.Constraint("Equal", 1, 5))
sketch1.addConstraint(Sketcher.Constraint("Equal", 15, 27))
sketch1.addConstraint(Sketcher.Constraint("Equal", 27, 31))
sketch1.addConstraint(Sketcher.Constraint("Equal", 25, 33))
sketch1.addConstraint(Sketcher.Constraint("Equal", 21, 37))
sketch1.addConstraint(Sketcher.Constraint("Equal", 35, 39))
sketch1.addConstraint(Sketcher.Constraint("Equal", 31, 43))
sketch1.addConstraint(Sketcher.Constraint("Equal", 13, 45))
sketch1.addConstraint(Sketcher.Constraint("Equal", 55, 2))
sketch1.addConstraint(Sketcher.Constraint("Equal", 10, 14))
sketch1.addConstraint(Sketcher.Constraint("Equal", 6, 18))
sketch1.addConstraint(Sketcher.Constraint("Equal", 4, 20))
sketch1.addConstraint(Sketcher.Constraint("DistanceX", 3, 2, 3, 1, Q("4 mm")))
sketch1.addConstraint(Sketcher.Constraint("DistanceX", 9, 2, 9, 1, Q("13 mm")))
sketch1.addConstraint(Sketcher.Constraint("DistanceX", 11, 2, 11, 1, Q("30 mm")))
sketch1.addConstraint(Sketcher.Constraint("DistanceX", 29, 1, 29, 2, Q("60 mm")))
sketch1.addConstraint(Sketcher.Constraint("DistanceY", 0, 2, 0, 1, Q("5 mm")))
sketch1.addConstraint(Sketcher.Constraint("DistanceY", 8, 1, 8, 2, Q("3 mm")))
sketch1.addConstraint(Sketcher.Constraint("DistanceY", 12, 2, 12, 1, Q("110 mm")))
sketch1.addConstraint(Sketcher.Constraint("DistanceX", 1, 2, 1, 1, Q("1.5 mm")))
pad1 = body.newObject("PartDesign::Pad", "Pad")
pad1.Profile = sketch1
pad1.Length = 3

# Sketch on XY plane
sketch2 = body.newObject("Sketcher::SketchObject", "Sketch001")
sketch2.AttachmentSupport = (doc.getObject("XY_Plane"), [""])
sketch2.MapMode = "FlatFace"
sketch2.AttachmentOffset = App.Placement(Vector(0, 0, 3), App.Rotation())
sketch2.addGeometry(Part.ArcOfCircle(Part.Circle(Vector(29.5, -55, 0), Vector(0, 0, 1), 2), math.radians(90), math.radians(180)), False)
sketch2.addGeometry(Part.ArcOfCircle(Part.Circle(Vector(29.5, -55, 0), Vector(0, 0, 1), 2), math.radians(-180), math.radians(-90)), False)
sketch2.addGeometry(Part.ArcOfCircle(Part.Circle(Vector(29.5, -55, 0), Vector(0, 0, 1), 2), math.radians(-90), math.radians(0)), False)
sketch2.addGeometry(Part.ArcOfCircle(Part.Circle(Vector(29.5, -55, 0), Vector(0, 0, 1), 2), math.radians(0), math.radians(90)), False)
sketch2.addGeometry(Part.ArcOfCircle(Part.Circle(Vector(90, -77.5, 0), Vector(0, 0, 1), 2), math.radians(90), math.radians(180)), False)
sketch2.addGeometry(Part.ArcOfCircle(Part.Circle(Vector(90, -77.5, 0), Vector(0, 0, 1), 2), math.radians(-180), math.radians(-90)), False)
sketch2.addGeometry(Part.ArcOfCircle(Part.Circle(Vector(90, -77.5, 0), Vector(0, 0, 1), 2), math.radians(-90), math.radians(0)), False)
sketch2.addGeometry(Part.ArcOfCircle(Part.Circle(Vector(90, -77.5, 0), Vector(0, 0, 1), 2), math.radians(0), math.radians(90)), False)
sketch2.addGeometry(Part.ArcOfCircle(Part.Circle(Vector(90, -32.5, 0), Vector(0, 0, 1), 2), math.radians(90), math.radians(180)), False)
sketch2.addGeometry(Part.ArcOfCircle(Part.Circle(Vector(90, -32.5, 0), Vector(0, 0, 1), 2), math.radians(-180), math.radians(-90)), False)
sketch2.addGeometry(Part.ArcOfCircle(Part.Circle(Vector(90, -32.5, 0), Vector(0, 0, 1), 2), math.radians(-90), math.radians(0)), False)
sketch2.addGeometry(Part.ArcOfCircle(Part.Circle(Vector(90, -32.5, 0), Vector(0, 0, 1), 2), math.radians(0), math.radians(90)), False)
sketch2.addGeometry(Part.ArcOfCircle(Part.Circle(Vector(150.5, -55, 0), Vector(0, 0, 1), 2), math.radians(0), math.radians(90)), False)
sketch2.addGeometry(Part.ArcOfCircle(Part.Circle(Vector(150.5, -55, 0), Vector(0, 0, 1), 2), math.radians(90), math.radians(180)), False)
sketch2.addGeometry(Part.ArcOfCircle(Part.Circle(Vector(150.5, -55, 0), Vector(0, 0, 1), 2), math.radians(-180), math.radians(-90)), False)
sketch2.addGeometry(Part.ArcOfCircle(Part.Circle(Vector(150.5, -55, 0), Vector(0, 0, 1), 2), math.radians(-90), math.radians(0)), False)
sketch2.addConstraint(Sketcher.Constraint("Tangent", 0, 2, 1, 1))
sketch2.addConstraint(Sketcher.Constraint("Tangent", 1, 2, 2, 1))
sketch2.addConstraint(Sketcher.Constraint("Tangent", 2, 2, 3, 1))
sketch2.addConstraint(Sketcher.Constraint("Tangent", 3, 2, 0, 1))
sketch2.addConstraint(Sketcher.Constraint("Tangent", 4, 2, 5, 1))
sketch2.addConstraint(Sketcher.Constraint("Tangent", 5, 2, 6, 1))
sketch2.addConstraint(Sketcher.Constraint("Tangent", 6, 2, 7, 1))
sketch2.addConstraint(Sketcher.Constraint("Tangent", 7, 2, 4, 1))
sketch2.addConstraint(Sketcher.Constraint("Tangent", 8, 2, 9, 1))
sketch2.addConstraint(Sketcher.Constraint("Tangent", 9, 2, 10, 1))
sketch2.addConstraint(Sketcher.Constraint("Tangent", 10, 2, 11, 1))
sketch2.addConstraint(Sketcher.Constraint("Tangent", 11, 2, 8, 1))
sketch2.addConstraint(Sketcher.Constraint("Tangent", 12, 2, 13, 1))
sketch2.addConstraint(Sketcher.Constraint("Tangent", 13, 2, 14, 1))
sketch2.addConstraint(Sketcher.Constraint("Tangent", 14, 2, 15, 1))
sketch2.addConstraint(Sketcher.Constraint("Tangent", 15, 2, 12, 1))
sketch2.addConstraint(Sketcher.Constraint("Equal", 0, 1))
sketch2.addConstraint(Sketcher.Constraint("Equal", 3, 4))
sketch2.addConstraint(Sketcher.Constraint("Equal", 4, 5))
sketch2.addConstraint(Sketcher.Constraint("Equal", 7, 8))
sketch2.addConstraint(Sketcher.Constraint("Equal", 8, 9))
sketch2.addConstraint(Sketcher.Constraint("Equal", 11, 12))
sketch2.addConstraint(Sketcher.Constraint("Equal", 12, 13))
sketch2.addConstraint(Sketcher.Constraint("Horizontal", 3, 3, 12, 3))
sketch2.addConstraint(Sketcher.Constraint("Horizontal", 15, 3, 0, 2))
sketch2.addConstraint(Sketcher.Constraint("Horizontal", 0, 2, 2, 2))
sketch2.addConstraint(Sketcher.Constraint("Horizontal", 7, 3, 4, 2))
sketch2.addConstraint(Sketcher.Constraint("Horizontal", 4, 2, 6, 2))
sketch2.addConstraint(Sketcher.Constraint("Horizontal", 11, 3, 8, 2))
sketch2.addConstraint(Sketcher.Constraint("Horizontal", 8, 2, 10, 2))
sketch2.addConstraint(Sketcher.Constraint("Horizontal", 2, 2, 13, 2))
sketch2.addConstraint(Sketcher.Constraint("Horizontal", 13, 2, 15, 2))
sketch2.addConstraint(Sketcher.Constraint("Vertical", 7, 3, 8, 3))
sketch2.addConstraint(Sketcher.Constraint("Vertical", 3, 3, 1, 2))
sketch2.addConstraint(Sketcher.Constraint("Vertical", 1, 2, 3, 2))
sketch2.addConstraint(Sketcher.Constraint("Vertical", 11, 3, 5, 2))
sketch2.addConstraint(Sketcher.Constraint("Vertical", 5, 2, 7, 2))
sketch2.addConstraint(Sketcher.Constraint("Vertical", 7, 2, 9, 2))
sketch2.addConstraint(Sketcher.Constraint("Vertical", 9, 2, 11, 2))
sketch2.addConstraint(Sketcher.Constraint("Vertical", 15, 3, 12, 2))
sketch2.addConstraint(Sketcher.Constraint("Vertical", 12, 2, 14, 2))
sketch2.addConstraint(Sketcher.Constraint("Radius", 0, Q("2 mm")))
sketch2.addConstraint(Sketcher.Constraint("DistanceY", 0, 3, -1, 1, Q("55 mm")))
sketch2.addConstraint(Sketcher.Constraint("DistanceX", -1, 1, 4, 3, Q("90 mm")))
sketch2.addConstraint(Sketcher.Constraint("DistanceY", 5, 3, 8, 3, Q("45 mm")))
sketch2.addConstraint(Sketcher.Constraint("DistanceX", -1, 1, 0, 3, Q("29.5 mm")))
sketch2.addConstraint(Sketcher.Constraint("DistanceY", 4, 3, -1, 1, Q("77.5 mm")))
sketch2.addConstraint(Sketcher.Constraint("DistanceX", -1, 1, 12, 3, Q("150.5 mm")))
pocket1 = body.newObject("PartDesign::Pocket", "Pocket")
pocket1.Profile = sketch2
pocket1.Type = "ThroughAll"

doc.recompute()
